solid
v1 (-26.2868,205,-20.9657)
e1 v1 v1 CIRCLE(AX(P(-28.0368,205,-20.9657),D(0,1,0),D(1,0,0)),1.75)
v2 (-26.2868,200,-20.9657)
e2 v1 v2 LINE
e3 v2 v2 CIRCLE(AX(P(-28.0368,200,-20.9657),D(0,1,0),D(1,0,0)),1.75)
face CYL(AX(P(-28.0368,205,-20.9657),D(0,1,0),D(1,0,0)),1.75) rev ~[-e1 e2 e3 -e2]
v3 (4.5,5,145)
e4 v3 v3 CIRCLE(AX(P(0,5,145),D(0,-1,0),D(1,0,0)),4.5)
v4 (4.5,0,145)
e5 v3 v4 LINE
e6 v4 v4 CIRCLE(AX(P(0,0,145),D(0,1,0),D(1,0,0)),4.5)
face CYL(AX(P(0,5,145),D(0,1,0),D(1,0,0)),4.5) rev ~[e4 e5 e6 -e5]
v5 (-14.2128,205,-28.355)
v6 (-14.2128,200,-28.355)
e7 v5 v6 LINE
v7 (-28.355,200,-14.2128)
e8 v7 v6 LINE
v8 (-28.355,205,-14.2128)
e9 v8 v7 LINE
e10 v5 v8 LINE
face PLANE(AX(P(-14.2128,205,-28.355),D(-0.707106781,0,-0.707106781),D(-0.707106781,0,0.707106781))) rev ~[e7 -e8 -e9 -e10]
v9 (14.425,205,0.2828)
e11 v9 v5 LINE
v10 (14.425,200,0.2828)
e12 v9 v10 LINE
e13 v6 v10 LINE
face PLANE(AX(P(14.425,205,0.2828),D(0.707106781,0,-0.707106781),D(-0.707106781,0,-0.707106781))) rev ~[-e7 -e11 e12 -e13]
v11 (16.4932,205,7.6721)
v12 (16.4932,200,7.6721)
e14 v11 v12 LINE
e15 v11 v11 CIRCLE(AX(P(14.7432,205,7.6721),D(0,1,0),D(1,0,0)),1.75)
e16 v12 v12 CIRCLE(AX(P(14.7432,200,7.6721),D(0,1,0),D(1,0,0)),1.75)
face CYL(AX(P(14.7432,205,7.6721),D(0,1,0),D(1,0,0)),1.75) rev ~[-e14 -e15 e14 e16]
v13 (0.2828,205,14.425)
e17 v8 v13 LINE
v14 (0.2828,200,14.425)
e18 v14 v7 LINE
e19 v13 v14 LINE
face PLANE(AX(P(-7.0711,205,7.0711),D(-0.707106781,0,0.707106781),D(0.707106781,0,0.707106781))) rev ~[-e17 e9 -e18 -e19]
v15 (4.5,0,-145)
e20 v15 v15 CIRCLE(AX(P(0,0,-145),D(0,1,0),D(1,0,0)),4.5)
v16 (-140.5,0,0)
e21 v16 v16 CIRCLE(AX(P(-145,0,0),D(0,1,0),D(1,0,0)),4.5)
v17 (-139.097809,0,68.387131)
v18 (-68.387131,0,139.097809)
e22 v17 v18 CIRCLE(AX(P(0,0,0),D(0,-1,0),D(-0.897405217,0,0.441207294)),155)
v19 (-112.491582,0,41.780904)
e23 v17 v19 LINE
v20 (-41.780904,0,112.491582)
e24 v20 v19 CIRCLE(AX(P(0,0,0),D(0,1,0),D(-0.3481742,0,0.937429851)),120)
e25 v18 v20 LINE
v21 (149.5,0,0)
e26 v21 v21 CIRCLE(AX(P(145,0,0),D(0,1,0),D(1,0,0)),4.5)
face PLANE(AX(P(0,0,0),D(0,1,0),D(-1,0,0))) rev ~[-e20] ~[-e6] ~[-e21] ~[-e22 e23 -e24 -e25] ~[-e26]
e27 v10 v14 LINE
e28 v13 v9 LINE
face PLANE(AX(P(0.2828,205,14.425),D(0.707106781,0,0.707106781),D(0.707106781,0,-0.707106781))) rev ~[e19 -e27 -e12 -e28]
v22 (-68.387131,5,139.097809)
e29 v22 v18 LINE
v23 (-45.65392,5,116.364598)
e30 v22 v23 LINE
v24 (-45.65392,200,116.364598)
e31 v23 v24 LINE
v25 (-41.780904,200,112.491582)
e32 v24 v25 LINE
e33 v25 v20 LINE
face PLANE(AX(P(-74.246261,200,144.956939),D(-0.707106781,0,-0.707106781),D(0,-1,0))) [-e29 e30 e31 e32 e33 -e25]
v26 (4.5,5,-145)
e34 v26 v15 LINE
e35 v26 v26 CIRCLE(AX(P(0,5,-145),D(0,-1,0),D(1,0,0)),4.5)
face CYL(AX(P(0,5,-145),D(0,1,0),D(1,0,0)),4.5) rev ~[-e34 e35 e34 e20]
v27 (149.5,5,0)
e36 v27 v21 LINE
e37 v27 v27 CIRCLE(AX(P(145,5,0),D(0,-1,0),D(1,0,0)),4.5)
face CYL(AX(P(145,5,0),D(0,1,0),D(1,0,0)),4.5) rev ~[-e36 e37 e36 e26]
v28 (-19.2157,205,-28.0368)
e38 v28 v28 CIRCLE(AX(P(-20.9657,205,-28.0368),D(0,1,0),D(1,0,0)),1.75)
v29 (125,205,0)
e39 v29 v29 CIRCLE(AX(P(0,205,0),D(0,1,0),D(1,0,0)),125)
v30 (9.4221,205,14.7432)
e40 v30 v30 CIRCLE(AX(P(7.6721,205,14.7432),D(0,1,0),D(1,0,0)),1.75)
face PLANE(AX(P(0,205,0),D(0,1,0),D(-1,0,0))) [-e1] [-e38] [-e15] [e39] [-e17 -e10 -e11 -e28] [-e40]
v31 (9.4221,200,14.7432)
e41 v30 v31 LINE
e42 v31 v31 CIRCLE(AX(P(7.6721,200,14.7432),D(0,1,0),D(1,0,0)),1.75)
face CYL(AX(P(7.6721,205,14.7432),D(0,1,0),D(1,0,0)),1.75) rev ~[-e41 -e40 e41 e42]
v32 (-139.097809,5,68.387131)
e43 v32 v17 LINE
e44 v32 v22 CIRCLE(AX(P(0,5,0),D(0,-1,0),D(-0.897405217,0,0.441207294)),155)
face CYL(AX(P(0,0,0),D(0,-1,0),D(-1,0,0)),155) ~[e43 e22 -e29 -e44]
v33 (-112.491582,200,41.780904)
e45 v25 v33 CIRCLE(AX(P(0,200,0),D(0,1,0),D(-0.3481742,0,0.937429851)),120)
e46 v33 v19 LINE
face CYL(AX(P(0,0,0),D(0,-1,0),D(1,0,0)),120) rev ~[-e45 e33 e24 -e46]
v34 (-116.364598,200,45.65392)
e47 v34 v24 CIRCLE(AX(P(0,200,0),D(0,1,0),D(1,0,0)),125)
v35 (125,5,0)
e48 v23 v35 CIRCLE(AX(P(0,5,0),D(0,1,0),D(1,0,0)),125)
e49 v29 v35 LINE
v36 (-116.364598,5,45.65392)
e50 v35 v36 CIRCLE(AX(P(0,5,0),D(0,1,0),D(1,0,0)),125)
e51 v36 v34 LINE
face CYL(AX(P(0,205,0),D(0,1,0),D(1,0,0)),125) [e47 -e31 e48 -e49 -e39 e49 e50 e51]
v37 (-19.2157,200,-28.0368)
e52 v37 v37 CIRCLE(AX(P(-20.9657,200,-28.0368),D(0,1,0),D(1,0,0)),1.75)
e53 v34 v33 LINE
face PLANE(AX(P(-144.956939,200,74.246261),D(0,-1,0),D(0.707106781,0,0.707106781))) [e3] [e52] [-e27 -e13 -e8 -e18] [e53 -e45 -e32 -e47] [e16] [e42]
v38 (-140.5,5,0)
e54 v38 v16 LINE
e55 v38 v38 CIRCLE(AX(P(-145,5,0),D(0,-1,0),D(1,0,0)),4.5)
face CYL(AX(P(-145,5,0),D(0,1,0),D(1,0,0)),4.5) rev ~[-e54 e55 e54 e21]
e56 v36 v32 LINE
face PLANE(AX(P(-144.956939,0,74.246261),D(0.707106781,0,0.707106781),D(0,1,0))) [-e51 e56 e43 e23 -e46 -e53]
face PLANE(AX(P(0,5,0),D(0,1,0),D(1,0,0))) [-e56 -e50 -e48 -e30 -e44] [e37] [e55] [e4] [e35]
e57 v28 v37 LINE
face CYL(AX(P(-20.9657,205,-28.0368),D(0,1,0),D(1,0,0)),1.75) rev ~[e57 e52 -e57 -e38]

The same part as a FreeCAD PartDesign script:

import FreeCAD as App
import Part
import Sketcher
from FreeCAD import Vector
Q = App.Units.Quantity

doc = App.newDocument("Part")
params = doc.addObject("Spreadsheet::Sheet", "Params")
for row, (alias, value) in enumerate([
    ("sketch1_diameter", "310 mm"),
    ("pad1_length", "205 mm"),
    ("sketch2_diameter", "310 mm"),
    ("sketch2_diameter2", "250 mm"),
    ("pocket1_length", "200 mm"),
    ("sketch3_diameter", "9 mm"),
    ("sketch4_diameter", "240 mm"),
    ("pocket3_length", "200 mm"),
    ("sketch5_width", "200 mm"),
    ("sketch5_height", "100 mm"),
    ("pocket4_length", "45.9129 mm"),
    ("sketch6_diameter", "3.5 mm"),
    ("sketch6_length", "20 mm"),
    ("sketch6_length2", "40.5 mm"),
], start=1):
    params.set(f"A{row}", alias)
    params.set(f"B{row}", "=" + value)
    params.setAlias(f"B{row}", alias)

body = doc.addObject("PartDesign::Body", "Body")

sketch1 = body.newObject("Sketcher::SketchObject", "Sketch")
sketch1.AttachmentSupport = (doc.getObject("XZ_Plane"), [""])
sketch1.MapMode = "FlatFace"
sketch1.addGeometry(Part.Circle(Vector(0, 0, 0), Vector(0, 0, 1), 155), False)
sketch1.addConstraint(Sketcher.Constraint("Coincident", 0, 3, -1, 1))
sketch1.addConstraint(Sketcher.Constraint("Diameter", 0, 310.0))
sketch1.setExpression("Constraints[1]", "Params.sketch1_diameter")
pad1 = body.newObject("PartDesign::Pad", "Pad")
pad1.Profile = sketch1
pad1.setExpression("Length", "Params.pad1_length")
pad1.Reversed = True

sketch2 = body.newObject("Sketcher::SketchObject", "Sketch001")
sketch2.AttachmentSupport = (doc.getObject("XZ_Plane"), [""])
sketch2.MapMode = "FlatFace"
sketch2.AttachmentOffset = App.Placement(Vector(0, 0, -205), App.Rotation())
sketch2.addGeometry(Part.Circle(Vector(0, 0, 0), Vector(0, 0, 1), 155), False)
sketch2.addGeometry(Part.Circle(Vector(0, 0, 0), Vector(0, 0, 1), 125), False)
sketch2.addConstraint(Sketcher.Constraint("Coincident", 0, 3, -1, 1))
sketch2.addConstraint(Sketcher.Constraint("Coincident", 1, 3, -1, 1))
sketch2.addConstraint(Sketcher.Constraint("Diameter", 0, 310.0))
sketch2.addConstraint(Sketcher.Constraint("Diameter", 1, 250.0))
sketch2.setExpression("Constraints[2]", "Params.sketch2_diameter")
sketch2.setExpression("Constraints[3]", "Params.sketch2_diameter2")
pocket1 = body.newObject("PartDesign::Pocket", "Pocket")
pocket1.Profile = sketch2
pocket1.setExpression("Length", "Params.pocket1_length")
pocket1.Reversed = True

sketch3 = body.newObject("Sketcher::SketchObject", "Sketch002")
sketch3.AttachmentSupport = (doc.getObject("XZ_Plane"), [""])
sketch3.MapMode = "FlatFace"
sketch3.AttachmentOffset = App.Placement(Vector(0, 0, -5), App.Rotation())
sketch3.addGeometry(Part.Circle(Vector(0, -145, 0), Vector(0, 0, 1), 4.5), False)
sketch3.addGeometry(Part.Circle(Vector(145, 0, 0), Vector(0, 0, 1), 4.5), False)
sketch3.addGeometry(Part.Circle(Vector(-145, 0, 0), Vector(0, 0, 1), 4.5), False)
sketch3.addGeometry(Part.Circle(Vector(0, 145, 0), Vector(0, 0, 1), 4.5), False)
sketch3.addConstraint(Sketcher.Constraint("Equal", 0, 1))
sketch3.addConstraint(Sketcher.Constraint("Equal", 1, 2))
sketch3.addConstraint(Sketcher.Constraint("Equal", 2, 3))
sketch3.addConstraint(Sketcher.Constraint("Symmetric", 1, 3, 2, 3, -1, 1))
sketch3.addConstraint(Sketcher.Constraint("Symmetric", 0, 3, 3, 3, -1, 1))
sketch3.addConstraint(Sketcher.Constraint("PointOnObject", 0, 3, -2))
sketch3.addConstraint(Sketcher.Constraint("PointOnObject", 1, 3, -1))
sketch3.addConstraint(Sketcher.Constraint("Diameter", 0, 9.0))
sketch3.addConstraint(Sketcher.Constraint("DistanceY", 0, 3, -1, 1, 145.0))
sketch3.addConstraint(Sketcher.Constraint("DistanceX", -1, 1, 1, 3, 145.0))
sketch3.setExpression("Constraints[7]", "Params.sketch3_diameter")
pocket2 = body.newObject("PartDesign::Pocket", "Pocket001")
pocket2.Profile = sketch3
pocket2.Type = "ThroughAll"
pocket2.Reversed = True

sketch4 = body.newObject("Sketcher::SketchObject", "Sketch003")
sketch4.AttachmentSupport = (doc.getObject("XZ_Plane"), [""])
sketch4.MapMode = "FlatFace"
sketch4.addGeometry(Part.Circle(Vector(0, 0, 0), Vector(0, 0, 1), 120), False)
sketch4.addConstraint(Sketcher.Constraint("Coincident", 0, 3, -1, 1))
sketch4.addConstraint(Sketcher.Constraint("Diameter", 0, 240.0))
sketch4.setExpression("Constraints[1]", "Params.sketch4_diameter")
pocket3 = body.newObject("PartDesign::Pocket", "Pocket002")
pocket3.Profile = sketch4
pocket3.setExpression("Length", "Params.pocket3_length")

sketch5 = body.newObject("Sketcher::SketchObject", "Sketch004")
sketch5.Placement = App.Placement(Vector(-109.6016, 0, 109.6016), App.Rotation(Vector(0, 1, 0), Vector(0.707106781, 0, 0.707106781), Vector(0.707106781, 0, -0.707106781), "ZXY"))
sketch5.addGeometry(Part.LineSegment(Vector(0, -50, 0), Vector(200, -50, 0)), False)
sketch5.addGeometry(Part.LineSegment(Vector(200, -50, 0), Vector(200, 50, 0)), False)
sketch5.addGeometry(Part.LineSegment(Vector(200, 50, 0), Vector(0, 50, 0)), False)
sketch5.addGeometry(Part.LineSegment(Vector(0, 50, 0), Vector(0, -50, 0)), False)
sketch5.addConstraint(Sketcher.Constraint("Coincident", 0, 2, 1, 1))
sketch5.addConstraint(Sketcher.Constraint("Coincident", 1, 2, 2, 1))
sketch5.addConstraint(Sketcher.Constraint("Coincident", 2, 2, 3, 1))
sketch5.addConstraint(Sketcher.Constraint("Coincident", 3, 2, 0, 1))
sketch5.addConstraint(Sketcher.Constraint("Horizontal", 0))
sketch5.addConstraint(Sketcher.Constraint("Vertical", 1))
sketch5.addConstraint(Sketcher.Constraint("Horizontal", 2))
sketch5.addConstraint(Sketcher.Constraint("Vertical", 3))
sketch5.addConstraint(Sketcher.Constraint("Symmetric", 2, 2, 3, 2, -1, 1))
sketch5.addConstraint(Sketcher.Constraint("DistanceX", 0, 1, 0, 2, 200.0))
sketch5.addConstraint(Sketcher.Constraint("DistanceY", 1, 1, 1, 2, 100.0))
sketch5.setExpression("Constraints[9]", "Params.sketch5_width")
sketch5.setExpression("Constraints[10]", "Params.sketch5_height")
pocket4 = body.newObject("PartDesign::Pocket", "Pocket003")
pocket4.Profile = sketch5
pocket4.setExpression("Length", "Params.pocket4_length")
pocket4.Reversed = True

sketch6 = body.newObject("Sketcher::SketchObject", "Sketch005")
sketch6.AttachmentSupport = (doc.getObject("XZ_Plane"), [""])
sketch6.MapMode = "FlatFace"
sketch6.AttachmentOffset = App.Placement(Vector(0, 0, -205), App.Rotation())
sketch6.addGeometry(Part.LineSegment(Vector(0.3, 14.4, 0), Vector(14.4, 0.3, 0)), False)
sketch6.addGeometry(Part.LineSegment(Vector(14.4, 0.3, 0), Vector(-14.2, -28.4, 0)), False)
sketch6.addGeometry(Part.LineSegment(Vector(-14.2, -28.4, 0), Vector(-28.4, -14.2, 0)), False)
sketch6.addGeometry(Part.LineSegment(Vector(-28.4, -14.2, 0), Vector(0.3, 14.4, 0)), False)
sketch6.addGeometry(Part.Circle(Vector(-28, -21, 0), Vector(0, 0, 1), 1.8), False)
sketch6.addGeometry(Part.Circle(Vector(-21, -28, 0), Vector(0, 0, 1), 1.8), False)
sketch6.addGeometry(Part.Circle(Vector(7.7, 14.7, 0), Vector(0, 0, 1), 1.8), False)
sketch6.addGeometry(Part.Circle(Vector(14.7, 7.7, 0), Vector(0, 0, 1), 1.8), False)
sketch6.addConstraint(Sketcher.Constraint("Coincident", 0, 2, 1, 1))
sketch6.addConstraint(Sketcher.Constraint("Coincident", 1, 2, 2, 1))
sketch6.addConstraint(Sketcher.Constraint("Coincident", 2, 2, 3, 1))
sketch6.addConstraint(Sketcher.Constraint("Coincident", 3, 2, 0, 1))
sketch6.addConstraint(Sketcher.Constraint("Equal", 4, 5))
sketch6.addConstraint(Sketcher.Constraint("Equal", 5, 6))
sketch6.addConstraint(Sketcher.Constraint("Equal", 6, 7))
sketch6.addConstraint(Sketcher.Constraint("Perpendicular", 0, 1))
sketch6.addConstraint(Sketcher.Constraint("Perpendicular", 1, 2))
sketch6.addConstraint(Sketcher.Constraint("Perpendicular", 2, 3))
sketch6.addConstraint(Sketcher.Constraint("Diameter", 4, 3.5))
sketch6.addConstraint(Sketcher.Constraint("Angle", 0, Q("-45 deg")))
sketch6.addConstraint(Sketcher.Constraint("Distance", 0, 20.0))
sketch6.addConstraint(Sketcher.Constraint("Distance", 1, 40.5))
sketch6.addConstraint(Sketcher.Constraint("DistanceY", 5, 3, 6, 3, 42.78))
sketch6.addConstraint(Sketcher.Constraint("DistanceX", 4, 3, 7, 3, 42.78))
sketch6.addConstraint(Sketcher.Constraint("DistanceX", -1, 1, 6, 3, 7.672))
sketch6.addConstraint(Sketcher.Constraint("DistanceY", -1, 1, 7, 3, 7.672))
sketch6.addConstraint(Sketcher.Constraint("DistanceX", -1, 1, 0, 2, 14.425))
sketch6.addConstraint(Sketcher.Constraint("DistanceY", 1, 2, -1, 1, 28.355))
sketch6.addConstraint(Sketcher.Constraint("DistanceX", 4, 3, 5, 3, 7.071))
sketch6.addConstraint(Sketcher.Constraint("DistanceY", 5, 3, 4, 3, 7.071))
sketch6.addConstraint(Sketcher.Constraint("DistanceX", 4, 3, 6, 3, 35.709))
sketch6.addConstraint(Sketcher.Constraint("DistanceY", 7, 3, 6, 3, 7.071))
sketch6.setExpression("Constraints[10]", "Params.sketch6_diameter")
sketch6.setExpression("Constraints[12]", "Params.sketch6_length")
sketch6.setExpression("Constraints[13]", "Params.sketch6_length2")
pocket5 = body.newObject("PartDesign::Pocket", "Pocket004")
pocket5.Profile = sketch6
pocket5.Type = "ThroughAll"
pocket5.Reversed = True

doc.recompute()
